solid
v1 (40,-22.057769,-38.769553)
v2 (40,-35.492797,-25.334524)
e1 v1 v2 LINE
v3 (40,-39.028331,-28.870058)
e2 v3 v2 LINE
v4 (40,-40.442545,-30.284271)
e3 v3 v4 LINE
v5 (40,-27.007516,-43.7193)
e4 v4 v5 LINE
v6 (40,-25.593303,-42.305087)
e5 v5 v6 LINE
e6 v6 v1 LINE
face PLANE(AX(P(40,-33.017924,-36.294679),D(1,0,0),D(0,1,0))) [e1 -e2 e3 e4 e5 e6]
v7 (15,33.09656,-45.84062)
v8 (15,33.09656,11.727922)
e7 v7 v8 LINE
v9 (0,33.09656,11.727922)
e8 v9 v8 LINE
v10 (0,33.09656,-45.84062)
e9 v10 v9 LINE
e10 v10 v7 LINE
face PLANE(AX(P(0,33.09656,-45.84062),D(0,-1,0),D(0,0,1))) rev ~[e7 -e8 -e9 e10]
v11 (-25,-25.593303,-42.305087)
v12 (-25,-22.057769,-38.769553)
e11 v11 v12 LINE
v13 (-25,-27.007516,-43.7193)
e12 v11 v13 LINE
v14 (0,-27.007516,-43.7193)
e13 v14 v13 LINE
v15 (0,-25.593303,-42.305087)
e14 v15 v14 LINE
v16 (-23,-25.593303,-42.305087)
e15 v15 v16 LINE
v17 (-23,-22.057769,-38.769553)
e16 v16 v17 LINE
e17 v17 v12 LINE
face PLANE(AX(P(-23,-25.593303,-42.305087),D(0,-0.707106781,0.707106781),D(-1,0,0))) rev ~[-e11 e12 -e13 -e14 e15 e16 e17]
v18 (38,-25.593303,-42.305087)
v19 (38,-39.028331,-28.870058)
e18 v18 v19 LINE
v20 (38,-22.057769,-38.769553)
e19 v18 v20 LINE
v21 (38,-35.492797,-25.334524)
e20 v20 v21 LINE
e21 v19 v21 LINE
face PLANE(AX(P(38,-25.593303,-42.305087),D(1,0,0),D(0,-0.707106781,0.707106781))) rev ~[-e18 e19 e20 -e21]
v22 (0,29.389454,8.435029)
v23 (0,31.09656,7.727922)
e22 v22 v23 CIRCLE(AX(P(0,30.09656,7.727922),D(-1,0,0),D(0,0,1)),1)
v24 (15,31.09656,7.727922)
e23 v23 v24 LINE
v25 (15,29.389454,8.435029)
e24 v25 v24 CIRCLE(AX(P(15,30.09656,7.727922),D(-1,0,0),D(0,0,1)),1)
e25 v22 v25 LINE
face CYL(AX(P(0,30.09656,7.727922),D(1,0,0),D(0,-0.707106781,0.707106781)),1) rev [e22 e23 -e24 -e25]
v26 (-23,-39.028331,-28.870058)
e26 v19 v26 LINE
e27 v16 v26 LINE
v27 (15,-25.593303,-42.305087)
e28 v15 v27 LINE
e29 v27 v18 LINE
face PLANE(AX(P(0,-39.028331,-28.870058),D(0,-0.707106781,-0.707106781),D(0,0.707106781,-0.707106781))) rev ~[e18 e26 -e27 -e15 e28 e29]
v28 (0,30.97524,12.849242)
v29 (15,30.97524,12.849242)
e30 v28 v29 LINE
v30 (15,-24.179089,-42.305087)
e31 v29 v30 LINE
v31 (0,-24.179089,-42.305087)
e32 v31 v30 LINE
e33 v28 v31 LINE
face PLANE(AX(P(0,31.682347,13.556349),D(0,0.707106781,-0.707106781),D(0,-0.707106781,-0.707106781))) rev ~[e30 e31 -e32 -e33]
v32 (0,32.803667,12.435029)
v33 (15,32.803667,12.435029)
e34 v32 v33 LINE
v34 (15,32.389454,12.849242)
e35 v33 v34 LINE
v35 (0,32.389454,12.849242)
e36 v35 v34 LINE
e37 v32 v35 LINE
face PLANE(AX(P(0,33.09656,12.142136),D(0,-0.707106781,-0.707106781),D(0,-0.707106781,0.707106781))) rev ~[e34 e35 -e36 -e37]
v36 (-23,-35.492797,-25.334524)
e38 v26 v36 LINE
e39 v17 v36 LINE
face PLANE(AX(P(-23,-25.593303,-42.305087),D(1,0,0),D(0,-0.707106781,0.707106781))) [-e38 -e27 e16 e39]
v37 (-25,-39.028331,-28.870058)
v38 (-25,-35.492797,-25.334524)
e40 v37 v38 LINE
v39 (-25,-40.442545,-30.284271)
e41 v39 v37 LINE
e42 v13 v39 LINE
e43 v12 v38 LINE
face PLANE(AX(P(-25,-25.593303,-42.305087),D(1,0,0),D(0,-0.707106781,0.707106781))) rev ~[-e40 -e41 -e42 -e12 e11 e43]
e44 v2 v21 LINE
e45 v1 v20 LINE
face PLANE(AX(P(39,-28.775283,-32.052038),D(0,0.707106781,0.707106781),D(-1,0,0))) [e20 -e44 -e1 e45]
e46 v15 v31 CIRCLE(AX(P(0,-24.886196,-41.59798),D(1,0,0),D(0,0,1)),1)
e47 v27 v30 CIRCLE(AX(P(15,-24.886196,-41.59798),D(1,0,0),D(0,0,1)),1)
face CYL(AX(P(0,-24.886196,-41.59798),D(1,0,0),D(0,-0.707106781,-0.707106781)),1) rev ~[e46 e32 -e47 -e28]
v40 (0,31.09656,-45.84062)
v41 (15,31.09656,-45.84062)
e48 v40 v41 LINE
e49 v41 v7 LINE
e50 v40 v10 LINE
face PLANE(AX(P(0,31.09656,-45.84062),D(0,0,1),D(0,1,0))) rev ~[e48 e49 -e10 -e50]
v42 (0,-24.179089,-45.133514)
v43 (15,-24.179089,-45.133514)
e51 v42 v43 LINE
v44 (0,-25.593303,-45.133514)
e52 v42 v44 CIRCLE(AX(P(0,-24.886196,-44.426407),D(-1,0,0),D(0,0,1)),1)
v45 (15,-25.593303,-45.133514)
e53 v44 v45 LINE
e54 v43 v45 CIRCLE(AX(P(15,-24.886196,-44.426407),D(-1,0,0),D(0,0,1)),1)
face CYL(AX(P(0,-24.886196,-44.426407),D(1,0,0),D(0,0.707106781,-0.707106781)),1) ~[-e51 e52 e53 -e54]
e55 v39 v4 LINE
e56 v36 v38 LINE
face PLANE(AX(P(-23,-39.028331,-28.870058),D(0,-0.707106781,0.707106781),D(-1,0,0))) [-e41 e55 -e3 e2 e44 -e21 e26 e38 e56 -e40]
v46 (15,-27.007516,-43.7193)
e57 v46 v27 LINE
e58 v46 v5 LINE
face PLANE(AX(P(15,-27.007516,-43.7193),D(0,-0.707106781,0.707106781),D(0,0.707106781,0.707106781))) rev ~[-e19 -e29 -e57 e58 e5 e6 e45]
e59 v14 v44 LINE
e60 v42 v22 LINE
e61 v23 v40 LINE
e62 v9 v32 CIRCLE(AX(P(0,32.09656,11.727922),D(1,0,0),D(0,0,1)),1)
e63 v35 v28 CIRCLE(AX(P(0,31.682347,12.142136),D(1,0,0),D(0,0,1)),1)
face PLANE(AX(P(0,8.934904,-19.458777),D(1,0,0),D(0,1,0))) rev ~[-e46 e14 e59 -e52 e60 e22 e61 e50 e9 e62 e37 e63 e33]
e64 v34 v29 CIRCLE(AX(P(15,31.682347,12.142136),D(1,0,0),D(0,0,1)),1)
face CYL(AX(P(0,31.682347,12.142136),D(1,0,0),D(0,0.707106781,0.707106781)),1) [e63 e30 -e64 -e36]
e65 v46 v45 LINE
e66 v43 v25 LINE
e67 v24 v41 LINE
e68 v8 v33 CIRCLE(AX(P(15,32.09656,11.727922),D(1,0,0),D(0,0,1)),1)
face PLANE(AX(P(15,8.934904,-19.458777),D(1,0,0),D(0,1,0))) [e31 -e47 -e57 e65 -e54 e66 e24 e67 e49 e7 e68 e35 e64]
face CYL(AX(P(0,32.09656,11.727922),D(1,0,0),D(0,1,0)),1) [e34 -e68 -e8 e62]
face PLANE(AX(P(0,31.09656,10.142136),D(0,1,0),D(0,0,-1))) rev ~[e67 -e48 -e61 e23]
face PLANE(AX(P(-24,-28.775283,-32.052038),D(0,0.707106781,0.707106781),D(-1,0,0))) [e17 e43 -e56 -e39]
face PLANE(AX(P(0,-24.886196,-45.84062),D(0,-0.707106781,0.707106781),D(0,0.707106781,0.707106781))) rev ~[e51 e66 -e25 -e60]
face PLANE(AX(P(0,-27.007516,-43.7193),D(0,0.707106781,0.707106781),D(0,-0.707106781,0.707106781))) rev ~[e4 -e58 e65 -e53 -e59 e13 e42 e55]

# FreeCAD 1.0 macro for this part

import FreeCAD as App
import Part
import Sketcher
Q = App.Units.Quantity


def edges_at(feature, points):
    """Names of the edges that pass closest to the given points."""
    edges = feature.Shape.Edges
    near = lambda p: min(range(len(edges)), key=lambda i: edges[i].distToShape(Part.Vertex(*p))[0])
    return sorted({f"Edge{near(p) + 1}" for p in points})

doc = App.newDocument("Part")
body = doc.addObject("PartDesign::Body", "Body")

sketch1 = body.newObject("Sketcher::SketchObject", "Sketch")
sketch1.AttachmentSupport = (doc.getObject("YZ_Plane"), [""])
sketch1.MapMode = "FlatFace"
sketch1.addGeometry(Part.LineSegment(App.Vector(-24.9, -43, 0), App.Vector(-39, -28.9, 0)), False)
sketch1.addGeometry(Part.LineSegment(App.Vector(-39, -28.9, 0), App.Vector(-40.4, -30.3, 0)), False)
sketch1.addGeometry(Part.LineSegment(App.Vector(-40.4, -30.3, 0), App.Vector(-24.9, -45.8, 0)), False)
sketch1.addGeometry(Part.LineSegment(App.Vector(-24.9, -45.8, 0), App.Vector(31.1, 10.1, 0)), False)
sketch1.addGeometry(Part.LineSegment(App.Vector(31.1, 10.1, 0), App.Vector(31.1, -45.8, 0)), False)
sketch1.addGeometry(Part.LineSegment(App.Vector(31.1, -45.8, 0), App.Vector(33.1, -45.8, 0)), False)
sketch1.addGeometry(Part.LineSegment(App.Vector(33.1, -45.8, 0), App.Vector(33.1, 12.1, 0)), False)
sketch1.addGeometry(Part.LineSegment(App.Vector(33.1, 12.1, 0), App.Vector(31.7, 13.6, 0)), False)
sketch1.addGeometry(Part.LineSegment(App.Vector(31.7, 13.6, 0), App.Vector(-24.9, -43, 0)), False)
sketch1.addConstraint(Sketcher.Constraint("Coincident", 0, 2, 1, 1))
sketch1.addConstraint(Sketcher.Constraint("Coincident", 1, 2, 2, 1))
sketch1.addConstraint(Sketcher.Constraint("Coincident", 2, 2, 3, 1))
sketch1.addConstraint(Sketcher.Constraint("Coincident", 3, 2, 4, 1))
sketch1.addConstraint(Sketcher.Constraint("Coincident", 4, 2, 5, 1))
sketch1.addConstraint(Sketcher.Constraint("Coincident", 5, 2, 6, 1))
sketch1.addConstraint(Sketcher.Constraint("Coincident", 6, 2, 7, 1))
sketch1.addConstraint(Sketcher.Constraint("Coincident", 7, 2, 8, 1))
sketch1.addConstraint(Sketcher.Constraint("Coincident", 8, 2, 0, 1))
sketch1.addConstraint(Sketcher.Constraint("Vertical", 4))
sketch1.addConstraint(Sketcher.Constraint("Horizontal", 5))
sketch1.addConstraint(Sketcher.Constraint("Vertical", 6))
sketch1.addConstraint(Sketcher.Constraint("Perpendicular", 0, 1))
sketch1.addConstraint(Sketcher.Constraint("Perpendicular", 1, 2))
sketch1.addConstraint(Sketcher.Constraint("Perpendicular", 2, 3))
sketch1.addConstraint(Sketcher.Constraint("Perpendicular", 3, 7))
sketch1.addConstraint(Sketcher.Constraint("Perpendicular", 7, 8))
sketch1.addConstraint(Sketcher.Constraint("Horizontal", 2, 2, 4, 2))
sketch1.addConstraint(Sketcher.Constraint("Vertical", 2, 2, 8, 2))
sketch1.addConstraint(Sketcher.Constraint("Equal", 1, 7))
sketch1.addConstraint(Sketcher.Constraint("DistanceX", 5, 1, 5, 2, 2.0))
sketch1.addConstraint(Sketcher.Constraint("Angle", 0, Q("135 deg")))
sketch1.addConstraint(Sketcher.Constraint("Distance", 0, 20.0))
sketch1.addConstraint(Sketcher.Constraint("Distance", 1, 2.0))
sketch1.addConstraint(Sketcher.Constraint("Distance", 8, 80.0))
sketch1.addConstraint(Sketcher.Constraint("DistanceX", 0, 2, -1, 1, 39.028331))
sketch1.addConstraint(Sketcher.Constraint("DistanceY", 1, 2, -1, 1, 30.284271))
pad1 = body.newObject("PartDesign::Pad", "Pad")
pad1.Profile = sketch1
pad1.Length = 15
doc.recompute()

fillet = body.newObject("PartDesign::Fillet", "Fillet")
fillet.Base = (pad1, edges_at(pad1, [(7.5, -24.886, -43.012)]))
fillet.Radius = 1
doc.recompute()

fillet2 = body.newObject("PartDesign::Fillet", "Fillet001")
fillet2.Base = (fillet, edges_at(fillet, [(7.5, 31.097, 10.142)]))
fillet2.Radius = 1
doc.recompute()

fillet3 = body.newObject("PartDesign::Fillet", "Fillet002")
fillet3.Base = (fillet2, edges_at(fillet2, [(7.5, -24.886, -45.841), (7.5, 31.682, 13.556), (7.5, 33.097, 12.142)]))
fillet3.Radius = 1

sketch2 = body.newObject("Sketcher::SketchObject", "Sketch001")
sketch2.AttachmentSupport = (doc.getObject("YZ_Plane"), [""])
sketch2.MapMode = "FlatFace"
sketch2.AttachmentOffset = App.Placement(App.Vector(0, 0, 15), App.Rotation())
sketch2.addGeometry(Part.LineSegment(App.Vector(-25.6, -42.3, 0), App.Vector(-39, -28.9, 0)), False)
sketch2.addGeometry(Part.LineSegment(App.Vector(-39, -28.9, 0), App.Vector(-40.4, -30.3, 0)), False)
sketch2.addGeometry(Part.LineSegment(App.Vector(-40.4, -30.3, 0), App.Vector(-27, -43.7, 0)), False)
sketch2.addGeometry(Part.LineSegment(App.Vector(-27, -43.7, 0), App.Vector(-25.6, -42.3, 0)), False)
sketch2.addConstraint(Sketcher.Constraint("Coincident", 0, 2, 1, 1))
sketch2.addConstraint(Sketcher.Constraint("Coincident", 1, 2, 2, 1))
sketch2.addConstraint(Sketcher.Constraint("Coincident", 2, 2, 3, 1))
sketch2.addConstraint(Sketcher.Constraint("Coincident", 3, 2, 0, 1))
sketch2.addConstraint(Sketcher.Constraint("Perpendicular", 0, 1))
sketch2.addConstraint(Sketcher.Constraint("Perpendicular", 1, 2))
sketch2.addConstraint(Sketcher.Constraint("Perpendicular", 2, 3))
sketch2.addConstraint(Sketcher.Constraint("Angle", 0, Q("135 deg")))
sketch2.addConstraint(Sketcher.Constraint("Distance", 0, 19.0))
sketch2.addConstraint(Sketcher.Constraint("Distance", 1, 2.0))
sketch2.addConstraint(Sketcher.Constraint("DistanceY", 2, 2, -1, 1, 43.7193))
sketch2.addConstraint(Sketcher.Constraint("DistanceX", 0, 2, -1, 1, 39.028331))
pad2 = body.newObject("PartDesign::Pad", "Pad001")
pad2.Profile = sketch2
pad2.Length = 25

sketch3 = body.newObject("Sketcher::SketchObject", "Sketch002")
sketch3.AttachmentSupport = (doc.getObject("YZ_Plane"), [""])
sketch3.MapMode = "FlatFace"
sketch3.addGeometry(Part.LineSegment(App.Vector(-40.4, -30.3, 0), App.Vector(-39, -28.9, 0)), False)
sketch3.addGeometry(Part.LineSegment(App.Vector(-39, -28.9, 0), App.Vector(-25.6, -42.3, 0)), False)
sketch3.addGeometry(Part.LineSegment(App.Vector(-25.6, -42.3, 0), App.Vector(-27, -43.7, 0)), False)
sketch3.addGeometry(Part.LineSegment(App.Vector(-27, -43.7, 0), App.Vector(-40.4, -30.3, 0)), False)
sketch3.addConstraint(Sketcher.Constraint("Coincident", 0, 2, 1, 1))
sketch3.addConstraint(Sketcher.Constraint("Coincident", 1, 2, 2, 1))
sketch3.addConstraint(Sketcher.Constraint("Coincident", 2, 2, 3, 1))
sketch3.addConstraint(Sketcher.Constraint("Coincident", 3, 2, 0, 1))
sketch3.addConstraint(Sketcher.Constraint("Perpendicular", 0, 1))
sketch3.addConstraint(Sketcher.Constraint("Perpendicular", 1, 2))
sketch3.addConstraint(Sketcher.Constraint("Perpendicular", 2, 3))
sketch3.addConstraint(Sketcher.Constraint("Angle", 0, Q("45 deg")))
sketch3.addConstraint(Sketcher.Constraint("Distance", 0, 2.0))
sketch3.addConstraint(Sketcher.Constraint("Distance", 1, 19.0))
sketch3.addConstraint(Sketcher.Constraint("DistanceY", 2, 2, -1, 1, 43.7193))
sketch3.addConstraint(Sketcher.Constraint("DistanceX", 0, 2, -1, 1, 39.028331))
pad3 = body.newObject("PartDesign::Pad", "Pad002")
pad3.Profile = sketch3
pad3.Length = 25
pad3.Reversed = True

sketch4 = body.newObject("Sketcher::SketchObject", "Sketch003")
sketch4.Placement = App.Placement(App.Vector(0, -33.949195, -33.949195), App.Rotation(App.Vector(-1, 0, 0), App.Vector(0, -0.707106781, 0.707106781), App.Vector(0, 0.707106781, 0.707106781), "ZXY"))
sketch4.addGeometry(Part.LineSegment(App.Vector(23, 7.2, 0), App.Vector(23, -11.8, 0)), False)
sketch4.addGeometry(Part.LineSegment(App.Vector(23, -11.8, 0), App.Vector(25, -11.8, 0)), False)
sketch4.addGeometry(Part.LineSegment(App.Vector(25, -11.8, 0), App.Vector(25, 7.2, 0)), False)
sketch4.addGeometry(Part.LineSegment(App.Vector(25, 7.2, 0), App.Vector(23, 7.2, 0)), False)
sketch4.addGeometry(Part.LineSegment(App.Vector(-40, 7.2, 0), App.Vector(-40, -11.8, 0)), False)
sketch4.addGeometry(Part.LineSegment(App.Vector(-40, -11.8, 0), App.Vector(-38, -11.8, 0)), False)
sketch4.addGeometry(Part.LineSegment(App.Vector(-38, -11.8, 0), App.Vector(-38, 7.2, 0)), False)
sketch4.addGeometry(Part.LineSegment(App.Vector(-38, 7.2, 0), App.Vector(-40, 7.2, 0)), False)
sketch4.addConstraint(Sketcher.Constraint("Coincident", 0, 2, 1, 1))
sketch4.addConstraint(Sketcher.Constraint("Coincident", 1, 2, 2, 1))
sketch4.addConstraint(Sketcher.Constraint("Coincident", 2, 2, 3, 1))
sketch4.addConstraint(Sketcher.Constraint("Coincident", 3, 2, 0, 1))
sketch4.addConstraint(Sketcher.Constraint("Coincident", 4, 2, 5, 1))
sketch4.addConstraint(Sketcher.Constraint("Coincident", 5, 2, 6, 1))
sketch4.addConstraint(Sketcher.Constraint("Coincident", 6, 2, 7, 1))
sketch4.addConstraint(Sketcher.Constraint("Coincident", 7, 2, 4, 1))
sketch4.addConstraint(Sketcher.Constraint("Vertical", 0))
sketch4.addConstraint(Sketcher.Constraint("Horizontal", 1))
sketch4.addConstraint(Sketcher.Constraint("Vertical", 2))
sketch4.addConstraint(Sketcher.Constraint("Horizontal", 3))
sketch4.addConstraint(Sketcher.Constraint("Vertical", 4))
sketch4.addConstraint(Sketcher.Constraint("Horizontal", 5))
sketch4.addConstraint(Sketcher.Constraint("Vertical", 6))
sketch4.addConstraint(Sketcher.Constraint("Horizontal", 7))
sketch4.addConstraint(Sketcher.Constraint("Horizontal", 1, 2, 4, 2))
sketch4.addConstraint(Sketcher.Constraint("Horizontal", 3, 2, 6, 2))
sketch4.addConstraint(Sketcher.Constraint("Equal", 3, 5))
sketch4.addConstraint(Sketcher.Constraint("DistanceX", 1, 1, 1, 2, 2.0))
sketch4.addConstraint(Sketcher.Constraint("DistanceY", 0, 2, 0, 1, 19.0))
sketch4.addConstraint(Sketcher.Constraint("DistanceX", -1, 1, 0, 2, 23.0))
sketch4.addConstraint(Sketcher.Constraint("DistanceX", 4, 2, -1, 1, 40.0))
sketch4.addConstraint(Sketcher.Constraint("DistanceY", 0, 2, -1, 1, 11.817016))
pad4 = body.newObject("PartDesign::Pad", "Pad003")
pad4.Profile = sketch4
pad4.Length = 5

doc.recompute()
